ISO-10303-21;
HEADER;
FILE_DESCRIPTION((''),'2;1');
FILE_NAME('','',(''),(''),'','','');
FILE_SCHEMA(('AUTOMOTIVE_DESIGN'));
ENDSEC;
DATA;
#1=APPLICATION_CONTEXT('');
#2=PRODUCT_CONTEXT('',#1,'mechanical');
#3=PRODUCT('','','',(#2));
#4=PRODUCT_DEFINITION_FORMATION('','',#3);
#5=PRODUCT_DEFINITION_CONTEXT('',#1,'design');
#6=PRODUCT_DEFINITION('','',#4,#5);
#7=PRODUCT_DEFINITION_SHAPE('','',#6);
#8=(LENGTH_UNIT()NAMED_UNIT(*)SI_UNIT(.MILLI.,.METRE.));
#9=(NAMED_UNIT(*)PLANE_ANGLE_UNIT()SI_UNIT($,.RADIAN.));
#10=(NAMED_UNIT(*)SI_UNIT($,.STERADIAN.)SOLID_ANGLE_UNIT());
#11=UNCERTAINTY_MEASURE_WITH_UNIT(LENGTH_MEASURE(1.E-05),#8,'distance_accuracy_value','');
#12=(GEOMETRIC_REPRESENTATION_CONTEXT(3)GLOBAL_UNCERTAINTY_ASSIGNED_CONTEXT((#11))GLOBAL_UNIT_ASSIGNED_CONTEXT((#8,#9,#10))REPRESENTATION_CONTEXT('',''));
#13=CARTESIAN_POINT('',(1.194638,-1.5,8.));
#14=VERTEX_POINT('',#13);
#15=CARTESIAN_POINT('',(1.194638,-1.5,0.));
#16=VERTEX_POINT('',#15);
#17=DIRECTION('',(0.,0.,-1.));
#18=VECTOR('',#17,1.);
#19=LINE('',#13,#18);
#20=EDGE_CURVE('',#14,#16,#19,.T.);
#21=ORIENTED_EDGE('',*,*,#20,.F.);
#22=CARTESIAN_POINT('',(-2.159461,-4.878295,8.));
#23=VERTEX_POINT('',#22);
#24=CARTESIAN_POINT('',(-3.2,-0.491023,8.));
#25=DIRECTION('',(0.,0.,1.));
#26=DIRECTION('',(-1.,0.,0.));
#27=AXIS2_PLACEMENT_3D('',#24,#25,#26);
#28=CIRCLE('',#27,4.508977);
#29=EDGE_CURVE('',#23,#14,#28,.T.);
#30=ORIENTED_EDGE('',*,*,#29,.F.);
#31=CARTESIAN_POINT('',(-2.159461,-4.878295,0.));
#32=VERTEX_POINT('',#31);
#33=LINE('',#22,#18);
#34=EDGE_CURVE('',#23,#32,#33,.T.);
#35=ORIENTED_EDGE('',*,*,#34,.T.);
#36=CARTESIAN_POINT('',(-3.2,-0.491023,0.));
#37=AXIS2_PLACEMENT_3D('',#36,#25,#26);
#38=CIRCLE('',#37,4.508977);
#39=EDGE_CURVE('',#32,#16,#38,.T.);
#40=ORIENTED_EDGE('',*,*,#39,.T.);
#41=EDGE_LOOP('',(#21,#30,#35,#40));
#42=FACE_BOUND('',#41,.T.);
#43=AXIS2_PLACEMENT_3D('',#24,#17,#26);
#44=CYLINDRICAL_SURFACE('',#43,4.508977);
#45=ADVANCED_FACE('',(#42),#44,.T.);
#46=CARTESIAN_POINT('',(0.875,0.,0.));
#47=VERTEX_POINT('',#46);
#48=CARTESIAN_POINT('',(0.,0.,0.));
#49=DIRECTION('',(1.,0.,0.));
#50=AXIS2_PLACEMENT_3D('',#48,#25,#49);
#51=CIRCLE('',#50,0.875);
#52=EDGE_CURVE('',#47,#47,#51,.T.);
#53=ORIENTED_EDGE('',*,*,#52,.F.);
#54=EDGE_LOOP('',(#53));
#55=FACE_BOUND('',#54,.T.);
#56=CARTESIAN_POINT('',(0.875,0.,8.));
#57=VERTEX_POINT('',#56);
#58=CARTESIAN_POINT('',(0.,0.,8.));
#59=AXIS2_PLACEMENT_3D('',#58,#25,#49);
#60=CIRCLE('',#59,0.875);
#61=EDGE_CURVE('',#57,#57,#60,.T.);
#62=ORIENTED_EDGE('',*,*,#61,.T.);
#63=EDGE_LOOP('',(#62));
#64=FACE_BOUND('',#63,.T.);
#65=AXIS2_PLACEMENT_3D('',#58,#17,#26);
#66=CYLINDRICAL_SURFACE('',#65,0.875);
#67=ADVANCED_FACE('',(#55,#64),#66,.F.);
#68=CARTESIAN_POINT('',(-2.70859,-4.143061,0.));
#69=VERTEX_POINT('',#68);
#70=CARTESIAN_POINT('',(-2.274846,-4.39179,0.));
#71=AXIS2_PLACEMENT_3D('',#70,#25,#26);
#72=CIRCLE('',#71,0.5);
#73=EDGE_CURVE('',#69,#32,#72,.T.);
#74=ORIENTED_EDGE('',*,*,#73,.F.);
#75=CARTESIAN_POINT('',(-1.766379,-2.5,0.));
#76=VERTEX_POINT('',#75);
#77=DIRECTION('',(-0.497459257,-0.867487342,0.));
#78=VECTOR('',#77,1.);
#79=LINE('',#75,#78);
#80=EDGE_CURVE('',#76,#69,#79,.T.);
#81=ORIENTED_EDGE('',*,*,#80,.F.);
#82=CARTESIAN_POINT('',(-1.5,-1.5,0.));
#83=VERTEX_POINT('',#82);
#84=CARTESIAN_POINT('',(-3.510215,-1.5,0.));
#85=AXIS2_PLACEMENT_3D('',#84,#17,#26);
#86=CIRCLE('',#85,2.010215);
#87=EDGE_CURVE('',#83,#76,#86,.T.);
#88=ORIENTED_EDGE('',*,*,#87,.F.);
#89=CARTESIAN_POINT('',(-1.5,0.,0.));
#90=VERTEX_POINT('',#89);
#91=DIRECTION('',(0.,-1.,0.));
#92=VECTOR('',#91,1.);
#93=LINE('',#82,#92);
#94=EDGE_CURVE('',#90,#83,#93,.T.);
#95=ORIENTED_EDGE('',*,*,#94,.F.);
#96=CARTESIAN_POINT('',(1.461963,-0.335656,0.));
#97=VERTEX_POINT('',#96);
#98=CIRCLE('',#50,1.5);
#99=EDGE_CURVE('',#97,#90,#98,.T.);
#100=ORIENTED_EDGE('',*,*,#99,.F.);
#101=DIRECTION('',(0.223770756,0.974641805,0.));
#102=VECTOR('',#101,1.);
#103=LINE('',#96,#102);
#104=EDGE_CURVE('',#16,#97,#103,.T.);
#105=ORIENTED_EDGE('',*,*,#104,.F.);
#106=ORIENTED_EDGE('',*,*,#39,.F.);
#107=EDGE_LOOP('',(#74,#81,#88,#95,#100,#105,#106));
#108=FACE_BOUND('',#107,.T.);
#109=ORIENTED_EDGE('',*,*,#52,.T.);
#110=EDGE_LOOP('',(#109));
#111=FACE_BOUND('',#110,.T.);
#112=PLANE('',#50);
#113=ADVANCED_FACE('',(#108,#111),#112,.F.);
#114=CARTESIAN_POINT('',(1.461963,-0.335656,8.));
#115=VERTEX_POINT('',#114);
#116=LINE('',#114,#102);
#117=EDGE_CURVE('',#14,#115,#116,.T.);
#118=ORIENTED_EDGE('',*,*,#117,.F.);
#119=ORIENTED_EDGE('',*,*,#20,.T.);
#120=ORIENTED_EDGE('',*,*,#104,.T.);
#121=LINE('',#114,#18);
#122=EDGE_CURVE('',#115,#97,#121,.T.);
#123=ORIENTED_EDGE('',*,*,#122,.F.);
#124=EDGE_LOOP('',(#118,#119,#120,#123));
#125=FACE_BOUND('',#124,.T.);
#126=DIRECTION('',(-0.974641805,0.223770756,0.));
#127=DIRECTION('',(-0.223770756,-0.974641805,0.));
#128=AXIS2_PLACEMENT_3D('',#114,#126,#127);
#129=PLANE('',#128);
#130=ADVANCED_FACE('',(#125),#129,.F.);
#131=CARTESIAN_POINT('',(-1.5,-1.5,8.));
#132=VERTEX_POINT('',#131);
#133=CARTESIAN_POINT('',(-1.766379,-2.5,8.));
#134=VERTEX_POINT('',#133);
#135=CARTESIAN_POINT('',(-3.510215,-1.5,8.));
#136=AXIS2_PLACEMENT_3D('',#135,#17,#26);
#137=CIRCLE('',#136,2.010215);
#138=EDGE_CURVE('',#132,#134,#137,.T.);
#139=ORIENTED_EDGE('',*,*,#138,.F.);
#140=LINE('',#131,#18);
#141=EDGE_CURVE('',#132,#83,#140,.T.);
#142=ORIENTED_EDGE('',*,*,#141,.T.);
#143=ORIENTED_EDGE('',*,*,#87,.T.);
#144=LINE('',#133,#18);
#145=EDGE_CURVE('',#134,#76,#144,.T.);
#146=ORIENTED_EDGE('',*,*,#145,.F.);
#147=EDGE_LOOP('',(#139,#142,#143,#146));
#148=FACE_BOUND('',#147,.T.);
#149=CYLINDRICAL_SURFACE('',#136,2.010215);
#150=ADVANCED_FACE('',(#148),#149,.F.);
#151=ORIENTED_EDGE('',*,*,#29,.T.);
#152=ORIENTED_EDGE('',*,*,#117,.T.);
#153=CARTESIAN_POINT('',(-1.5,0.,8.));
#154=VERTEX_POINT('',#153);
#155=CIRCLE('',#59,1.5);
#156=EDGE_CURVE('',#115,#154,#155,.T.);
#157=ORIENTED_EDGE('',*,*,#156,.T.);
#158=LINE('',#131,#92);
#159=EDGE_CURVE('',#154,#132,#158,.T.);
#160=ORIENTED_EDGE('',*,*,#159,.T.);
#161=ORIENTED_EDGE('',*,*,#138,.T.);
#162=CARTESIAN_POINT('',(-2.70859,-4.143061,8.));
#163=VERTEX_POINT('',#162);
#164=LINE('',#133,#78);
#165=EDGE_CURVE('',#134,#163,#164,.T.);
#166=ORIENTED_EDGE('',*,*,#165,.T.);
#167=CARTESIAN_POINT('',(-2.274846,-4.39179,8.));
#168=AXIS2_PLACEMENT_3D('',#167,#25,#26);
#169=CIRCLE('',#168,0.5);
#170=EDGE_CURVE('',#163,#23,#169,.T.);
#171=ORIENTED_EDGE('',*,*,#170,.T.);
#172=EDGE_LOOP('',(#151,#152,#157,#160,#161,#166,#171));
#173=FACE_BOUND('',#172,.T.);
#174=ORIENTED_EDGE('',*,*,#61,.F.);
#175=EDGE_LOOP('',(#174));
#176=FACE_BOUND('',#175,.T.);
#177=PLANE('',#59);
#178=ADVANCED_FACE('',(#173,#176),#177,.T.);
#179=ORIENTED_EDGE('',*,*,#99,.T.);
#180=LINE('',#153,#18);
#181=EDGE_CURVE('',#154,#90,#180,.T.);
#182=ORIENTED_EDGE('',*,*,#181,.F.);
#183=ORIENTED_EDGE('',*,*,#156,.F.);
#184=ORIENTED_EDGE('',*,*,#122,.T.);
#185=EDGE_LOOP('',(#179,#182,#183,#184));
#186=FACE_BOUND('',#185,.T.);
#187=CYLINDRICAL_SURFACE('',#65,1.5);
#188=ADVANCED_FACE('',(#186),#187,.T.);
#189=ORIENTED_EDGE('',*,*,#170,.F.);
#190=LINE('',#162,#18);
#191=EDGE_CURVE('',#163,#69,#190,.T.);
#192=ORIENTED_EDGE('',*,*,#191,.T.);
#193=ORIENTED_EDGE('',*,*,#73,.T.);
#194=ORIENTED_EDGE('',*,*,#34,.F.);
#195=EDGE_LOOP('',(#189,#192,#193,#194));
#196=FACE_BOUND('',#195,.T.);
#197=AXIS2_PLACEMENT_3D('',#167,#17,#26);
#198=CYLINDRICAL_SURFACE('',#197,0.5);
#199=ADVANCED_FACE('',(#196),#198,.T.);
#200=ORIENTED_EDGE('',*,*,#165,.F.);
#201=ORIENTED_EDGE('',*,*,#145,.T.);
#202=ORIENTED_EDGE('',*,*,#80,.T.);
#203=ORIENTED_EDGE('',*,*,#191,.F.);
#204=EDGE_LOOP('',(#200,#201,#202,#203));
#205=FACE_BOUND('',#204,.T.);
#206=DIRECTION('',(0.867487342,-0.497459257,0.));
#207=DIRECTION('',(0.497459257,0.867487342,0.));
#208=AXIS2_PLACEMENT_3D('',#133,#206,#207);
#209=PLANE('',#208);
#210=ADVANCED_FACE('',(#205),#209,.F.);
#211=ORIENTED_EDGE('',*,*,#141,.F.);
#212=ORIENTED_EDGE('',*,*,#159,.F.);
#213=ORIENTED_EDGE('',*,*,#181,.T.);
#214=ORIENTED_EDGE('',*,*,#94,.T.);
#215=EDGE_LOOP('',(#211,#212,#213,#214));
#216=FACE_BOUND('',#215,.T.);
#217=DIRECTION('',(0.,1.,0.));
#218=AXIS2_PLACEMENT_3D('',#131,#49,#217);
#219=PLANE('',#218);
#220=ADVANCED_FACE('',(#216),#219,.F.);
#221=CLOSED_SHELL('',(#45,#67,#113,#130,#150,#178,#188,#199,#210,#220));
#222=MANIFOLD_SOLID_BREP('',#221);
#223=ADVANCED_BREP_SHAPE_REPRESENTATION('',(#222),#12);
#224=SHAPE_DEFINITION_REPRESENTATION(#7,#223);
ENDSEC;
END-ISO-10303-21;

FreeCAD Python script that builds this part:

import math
import FreeCAD as App
import Part
import Sketcher
Q = App.Units.Quantity

doc = App.newDocument("Part")
body = doc.addObject("PartDesign::Body", "Body")

# Sketch on XY plane
sketch1 = body.newObject("Sketcher::SketchObject", "Sketch")
sketch1.AttachmentSupport = (doc.getObject("XY_Plane"), [""])
sketch1.MapMode = "FlatFace"
sketch1.addGeometry([
    Part.LineSegment(App.Vector(1.2, -1.5, 0), App.Vector(1.5, -0.3, 0)),  # 0
    Part.ArcOfCircle(Part.Circle(App.Vector(0, 0, 0), App.Vector(0, 0, 1), 1.5), math.radians(-13), math.radians(180)),  # 1
    Part.LineSegment(App.Vector(-1.5, 0, 0), App.Vector(-1.5, -1.5, 0)),  # 2
    Part.ArcOfCircle(Part.Circle(App.Vector(-3.5, -1.5, 0), App.Vector(0, 0, 1), 2), math.radians(-30), math.radians(0)),  # 3
    Part.LineSegment(App.Vector(-1.8, -2.5, 0), App.Vector(-2.7, -4.1, 0)),  # 4
    Part.ArcOfCircle(Part.Circle(App.Vector(-2.3, -4.4, 0), App.Vector(0, 0, 1), 0.5), math.radians(150), math.radians(283)),  # 5
    Part.ArcOfCircle(Part.Circle(App.Vector(-3.2, -0.5, 0), App.Vector(0, 0, 1), 4.5), math.radians(-77), math.radians(-13)),  # 6
    Part.Circle(App.Vector(0, 0, 0), App.Vector(0, 0, 1), 0.9),  # 7
], False)
sketch1.addConstraint([
    Sketcher.Constraint("Tangent", 0, 2, 1, 1),
    Sketcher.Constraint("Tangent", 1, 2, 2, 1),
    Sketcher.Constraint("Tangent", 2, 2, 3, 2),
    Sketcher.Constraint("Tangent", 3, 1, 4, 1),
    Sketcher.Constraint("Tangent", 4, 2, 5, 1),
    Sketcher.Constraint("Tangent", 5, 2, 6, 1),
    Sketcher.Constraint("Tangent", 6, 2, 0, 1),
    Sketcher.Constraint("Vertical", 2),
    Sketcher.Constraint("Coincident", 1, 3, -1, 1),
    Sketcher.Constraint("Coincident", 7, 3, -1, 1),
    Sketcher.Constraint("Horizontal", 2, 2, 6, 2),
    Sketcher.Constraint("Radius", 1, Q("1.5 mm")),
    Sketcher.Constraint("Radius", 5, Q("0.5 mm")),
    Sketcher.Constraint("Diameter", 7, Q("1.75 mm")),
    Sketcher.Constraint("DistanceY", 2, 2, 2, 1, Q("1.5 mm")),
    Sketcher.Constraint("DistanceY", 3, 1, 2, 2, Q("1 mm")),
    Sketcher.Constraint("DistanceX", 6, 3, -1, 1, Q("3.2 mm")),
    Sketcher.Constraint("Radius", 3, Q("2.010215 mm")),
    Sketcher.Constraint("Radius", 6, Q("4.508977 mm")),
])
pad1 = body.newObject("PartDesign::Pad", "Pad")
pad1.Profile = sketch1
pad1.Length = 8

doc.recompute()
